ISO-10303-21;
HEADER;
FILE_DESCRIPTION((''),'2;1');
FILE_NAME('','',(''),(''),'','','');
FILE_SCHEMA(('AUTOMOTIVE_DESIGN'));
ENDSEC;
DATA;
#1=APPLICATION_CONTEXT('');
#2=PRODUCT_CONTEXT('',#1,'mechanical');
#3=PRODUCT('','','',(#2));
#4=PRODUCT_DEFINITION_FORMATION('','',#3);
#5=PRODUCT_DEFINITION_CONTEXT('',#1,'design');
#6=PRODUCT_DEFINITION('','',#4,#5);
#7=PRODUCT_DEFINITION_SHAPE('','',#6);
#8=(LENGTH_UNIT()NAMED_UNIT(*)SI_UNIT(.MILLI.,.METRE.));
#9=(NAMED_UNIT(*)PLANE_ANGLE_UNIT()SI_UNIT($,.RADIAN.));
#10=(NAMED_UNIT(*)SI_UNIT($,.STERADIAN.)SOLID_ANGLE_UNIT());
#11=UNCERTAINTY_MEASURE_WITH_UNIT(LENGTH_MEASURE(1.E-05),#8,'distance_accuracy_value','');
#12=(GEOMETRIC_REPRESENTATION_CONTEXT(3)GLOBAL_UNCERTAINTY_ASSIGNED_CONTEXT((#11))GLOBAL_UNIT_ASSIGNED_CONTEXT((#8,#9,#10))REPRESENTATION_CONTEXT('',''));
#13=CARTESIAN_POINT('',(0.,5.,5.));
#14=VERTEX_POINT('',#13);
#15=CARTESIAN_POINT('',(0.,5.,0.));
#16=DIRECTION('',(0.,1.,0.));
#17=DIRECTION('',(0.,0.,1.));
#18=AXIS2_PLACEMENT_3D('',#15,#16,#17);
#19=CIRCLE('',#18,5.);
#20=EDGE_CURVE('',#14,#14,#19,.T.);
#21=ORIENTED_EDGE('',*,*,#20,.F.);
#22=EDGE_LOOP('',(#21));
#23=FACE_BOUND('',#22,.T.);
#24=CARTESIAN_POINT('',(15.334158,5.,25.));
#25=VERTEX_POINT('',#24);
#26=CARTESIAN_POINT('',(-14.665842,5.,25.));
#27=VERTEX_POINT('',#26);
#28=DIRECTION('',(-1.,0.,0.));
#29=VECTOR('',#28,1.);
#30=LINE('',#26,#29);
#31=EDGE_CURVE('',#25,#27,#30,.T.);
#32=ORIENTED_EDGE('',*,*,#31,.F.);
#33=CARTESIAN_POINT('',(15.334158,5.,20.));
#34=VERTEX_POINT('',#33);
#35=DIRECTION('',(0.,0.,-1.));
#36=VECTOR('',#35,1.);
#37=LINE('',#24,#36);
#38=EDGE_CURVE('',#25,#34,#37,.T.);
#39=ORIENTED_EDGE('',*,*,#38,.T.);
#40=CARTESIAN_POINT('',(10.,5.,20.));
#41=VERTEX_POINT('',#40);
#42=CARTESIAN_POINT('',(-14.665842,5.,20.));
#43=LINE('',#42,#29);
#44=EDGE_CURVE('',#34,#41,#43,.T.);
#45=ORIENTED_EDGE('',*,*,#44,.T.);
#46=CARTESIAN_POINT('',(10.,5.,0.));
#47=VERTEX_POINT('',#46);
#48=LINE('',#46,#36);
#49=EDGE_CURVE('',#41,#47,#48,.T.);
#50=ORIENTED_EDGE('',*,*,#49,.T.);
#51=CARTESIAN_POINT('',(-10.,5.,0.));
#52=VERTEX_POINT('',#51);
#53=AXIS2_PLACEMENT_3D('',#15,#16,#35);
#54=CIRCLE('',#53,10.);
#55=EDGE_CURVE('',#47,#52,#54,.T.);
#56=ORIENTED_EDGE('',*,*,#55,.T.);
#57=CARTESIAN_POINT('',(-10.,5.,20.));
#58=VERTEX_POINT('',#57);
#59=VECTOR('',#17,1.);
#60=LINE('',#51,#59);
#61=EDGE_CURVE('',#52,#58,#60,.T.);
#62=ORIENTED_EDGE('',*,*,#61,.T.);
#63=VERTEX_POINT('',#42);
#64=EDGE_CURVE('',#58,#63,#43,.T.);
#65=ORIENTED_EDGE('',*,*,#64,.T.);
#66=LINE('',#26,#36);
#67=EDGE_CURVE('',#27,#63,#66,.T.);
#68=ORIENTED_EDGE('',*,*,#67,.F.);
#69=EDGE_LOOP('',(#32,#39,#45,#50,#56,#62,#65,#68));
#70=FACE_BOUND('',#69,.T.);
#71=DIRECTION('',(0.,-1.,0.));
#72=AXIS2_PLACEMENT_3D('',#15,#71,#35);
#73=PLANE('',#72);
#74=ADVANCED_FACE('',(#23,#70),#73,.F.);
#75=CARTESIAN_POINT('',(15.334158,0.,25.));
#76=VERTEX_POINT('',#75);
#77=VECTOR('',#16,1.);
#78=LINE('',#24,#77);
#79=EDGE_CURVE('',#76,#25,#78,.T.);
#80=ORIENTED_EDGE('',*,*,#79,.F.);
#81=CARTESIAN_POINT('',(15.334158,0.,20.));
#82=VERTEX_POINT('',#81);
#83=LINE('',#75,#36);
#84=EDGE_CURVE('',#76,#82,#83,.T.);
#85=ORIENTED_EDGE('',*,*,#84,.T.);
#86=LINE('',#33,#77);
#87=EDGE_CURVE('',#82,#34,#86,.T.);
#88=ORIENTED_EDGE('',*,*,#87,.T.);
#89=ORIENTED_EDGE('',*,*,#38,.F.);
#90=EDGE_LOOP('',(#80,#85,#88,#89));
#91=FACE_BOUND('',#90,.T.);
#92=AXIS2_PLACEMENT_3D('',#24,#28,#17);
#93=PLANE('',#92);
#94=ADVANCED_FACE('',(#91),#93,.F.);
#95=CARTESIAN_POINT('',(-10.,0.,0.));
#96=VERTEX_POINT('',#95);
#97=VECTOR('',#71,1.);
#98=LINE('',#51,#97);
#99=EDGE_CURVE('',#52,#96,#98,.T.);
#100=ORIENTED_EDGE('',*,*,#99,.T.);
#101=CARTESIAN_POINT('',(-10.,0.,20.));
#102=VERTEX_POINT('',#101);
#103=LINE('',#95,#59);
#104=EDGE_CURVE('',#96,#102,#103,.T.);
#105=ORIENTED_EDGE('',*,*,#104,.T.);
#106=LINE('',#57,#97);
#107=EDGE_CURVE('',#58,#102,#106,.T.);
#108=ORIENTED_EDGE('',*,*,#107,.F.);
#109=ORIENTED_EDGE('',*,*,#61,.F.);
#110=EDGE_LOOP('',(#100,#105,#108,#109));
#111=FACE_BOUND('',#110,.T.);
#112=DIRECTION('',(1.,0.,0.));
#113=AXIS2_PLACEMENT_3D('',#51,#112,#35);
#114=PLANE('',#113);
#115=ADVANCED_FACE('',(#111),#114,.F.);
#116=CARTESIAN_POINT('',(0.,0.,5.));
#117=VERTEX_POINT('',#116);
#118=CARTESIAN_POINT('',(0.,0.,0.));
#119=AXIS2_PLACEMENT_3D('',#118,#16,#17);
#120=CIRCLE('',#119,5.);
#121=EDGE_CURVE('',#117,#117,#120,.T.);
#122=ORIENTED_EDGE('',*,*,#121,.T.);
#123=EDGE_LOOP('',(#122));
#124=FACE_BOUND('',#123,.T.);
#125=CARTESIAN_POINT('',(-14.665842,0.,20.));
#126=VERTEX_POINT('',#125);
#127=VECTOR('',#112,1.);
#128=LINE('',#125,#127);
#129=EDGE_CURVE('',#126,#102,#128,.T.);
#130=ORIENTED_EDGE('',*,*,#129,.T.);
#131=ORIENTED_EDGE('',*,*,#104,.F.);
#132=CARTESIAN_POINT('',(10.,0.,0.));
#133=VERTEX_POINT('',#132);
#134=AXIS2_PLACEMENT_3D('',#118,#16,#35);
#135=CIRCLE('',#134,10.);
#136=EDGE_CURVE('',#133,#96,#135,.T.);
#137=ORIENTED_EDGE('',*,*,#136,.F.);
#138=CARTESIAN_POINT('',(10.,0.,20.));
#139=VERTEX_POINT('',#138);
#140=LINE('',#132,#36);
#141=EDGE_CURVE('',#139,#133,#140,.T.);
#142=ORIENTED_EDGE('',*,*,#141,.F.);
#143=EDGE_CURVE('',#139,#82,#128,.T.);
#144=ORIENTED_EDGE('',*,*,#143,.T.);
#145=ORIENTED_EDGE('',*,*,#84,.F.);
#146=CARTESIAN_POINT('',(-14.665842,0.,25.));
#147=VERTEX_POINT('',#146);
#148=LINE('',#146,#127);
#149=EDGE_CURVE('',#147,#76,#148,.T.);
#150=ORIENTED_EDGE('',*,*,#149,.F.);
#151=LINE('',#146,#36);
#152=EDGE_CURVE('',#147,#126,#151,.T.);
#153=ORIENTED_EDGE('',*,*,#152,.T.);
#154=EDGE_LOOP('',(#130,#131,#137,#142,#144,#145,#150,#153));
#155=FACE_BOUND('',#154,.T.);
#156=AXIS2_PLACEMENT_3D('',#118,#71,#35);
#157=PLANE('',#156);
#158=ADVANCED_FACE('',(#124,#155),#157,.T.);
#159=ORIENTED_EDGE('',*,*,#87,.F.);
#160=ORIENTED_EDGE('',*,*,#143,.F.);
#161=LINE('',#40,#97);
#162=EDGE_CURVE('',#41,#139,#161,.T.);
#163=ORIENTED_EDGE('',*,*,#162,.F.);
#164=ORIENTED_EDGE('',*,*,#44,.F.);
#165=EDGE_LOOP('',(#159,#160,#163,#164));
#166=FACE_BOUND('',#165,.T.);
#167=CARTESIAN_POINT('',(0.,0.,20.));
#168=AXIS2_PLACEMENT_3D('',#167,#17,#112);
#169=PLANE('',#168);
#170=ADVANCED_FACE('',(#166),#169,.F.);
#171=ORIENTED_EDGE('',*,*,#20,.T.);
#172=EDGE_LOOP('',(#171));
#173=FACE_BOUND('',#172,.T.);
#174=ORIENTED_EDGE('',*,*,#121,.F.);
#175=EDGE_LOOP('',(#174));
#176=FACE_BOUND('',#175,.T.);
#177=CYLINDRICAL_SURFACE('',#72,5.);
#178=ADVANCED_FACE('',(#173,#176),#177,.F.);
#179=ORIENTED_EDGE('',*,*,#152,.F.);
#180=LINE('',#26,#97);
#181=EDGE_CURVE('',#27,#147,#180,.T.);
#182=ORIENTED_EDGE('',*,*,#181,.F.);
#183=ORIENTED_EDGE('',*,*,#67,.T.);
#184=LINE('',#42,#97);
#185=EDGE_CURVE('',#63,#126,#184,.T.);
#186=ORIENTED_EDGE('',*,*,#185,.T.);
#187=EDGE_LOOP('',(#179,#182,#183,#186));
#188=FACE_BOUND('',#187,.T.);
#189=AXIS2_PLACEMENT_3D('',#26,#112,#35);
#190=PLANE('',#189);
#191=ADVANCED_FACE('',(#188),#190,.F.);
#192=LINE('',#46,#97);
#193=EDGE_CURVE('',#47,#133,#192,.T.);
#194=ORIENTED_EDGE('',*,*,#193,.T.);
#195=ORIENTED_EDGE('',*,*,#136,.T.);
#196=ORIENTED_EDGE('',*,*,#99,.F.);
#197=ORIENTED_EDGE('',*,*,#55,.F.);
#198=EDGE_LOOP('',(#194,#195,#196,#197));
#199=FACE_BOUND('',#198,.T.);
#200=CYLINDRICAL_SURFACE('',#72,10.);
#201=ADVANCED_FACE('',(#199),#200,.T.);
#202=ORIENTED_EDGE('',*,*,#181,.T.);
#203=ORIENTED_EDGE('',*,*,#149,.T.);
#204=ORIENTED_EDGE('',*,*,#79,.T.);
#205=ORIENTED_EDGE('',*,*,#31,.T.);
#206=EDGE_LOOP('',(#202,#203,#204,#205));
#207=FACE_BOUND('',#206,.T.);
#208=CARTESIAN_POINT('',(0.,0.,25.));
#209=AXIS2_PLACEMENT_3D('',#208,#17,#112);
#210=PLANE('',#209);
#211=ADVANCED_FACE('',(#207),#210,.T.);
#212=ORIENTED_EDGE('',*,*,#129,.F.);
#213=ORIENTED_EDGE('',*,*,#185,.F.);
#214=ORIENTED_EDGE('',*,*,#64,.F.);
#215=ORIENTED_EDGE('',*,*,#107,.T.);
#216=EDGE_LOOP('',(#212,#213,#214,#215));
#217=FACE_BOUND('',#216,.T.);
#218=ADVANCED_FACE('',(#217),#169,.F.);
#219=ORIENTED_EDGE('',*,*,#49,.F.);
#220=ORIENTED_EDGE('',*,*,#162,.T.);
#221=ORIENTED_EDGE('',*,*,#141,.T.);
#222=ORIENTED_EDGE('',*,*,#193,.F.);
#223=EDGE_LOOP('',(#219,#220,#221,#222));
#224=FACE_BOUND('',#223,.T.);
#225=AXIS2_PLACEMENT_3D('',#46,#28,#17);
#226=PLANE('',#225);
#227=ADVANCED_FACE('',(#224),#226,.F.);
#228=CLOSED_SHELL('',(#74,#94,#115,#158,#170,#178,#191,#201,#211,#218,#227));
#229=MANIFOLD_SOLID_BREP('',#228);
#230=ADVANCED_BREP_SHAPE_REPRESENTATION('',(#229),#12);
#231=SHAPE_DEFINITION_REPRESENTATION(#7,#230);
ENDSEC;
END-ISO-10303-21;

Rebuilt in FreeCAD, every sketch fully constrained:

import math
import FreeCAD as App
import Part
import Sketcher

doc = App.newDocument("Part")
body = doc.addObject("PartDesign::Body", "Body")

sketch1 = body.newObject("Sketcher::SketchObject", "Sketch")
sketch1.AttachmentSupport = (doc.getObject("XZ_Plane"), [""])
sketch1.MapMode = "FlatFace"
sketch1.addGeometry(Part.LineSegment(App.Vector(-10, 0, 0), App.Vector(-10, 20, 0)), False)
sketch1.addGeometry(Part.LineSegment(App.Vector(-10, 20, 0), App.Vector(10, 20, 0)), False)
sketch1.addGeometry(Part.LineSegment(App.Vector(10, 20, 0), App.Vector(10, 0, 0)), False)
sketch1.addGeometry(Part.ArcOfCircle(Part.Circle(App.Vector(0, 0, 0), App.Vector(0, 0, 1), 10), math.radians(180), math.radians(360)), False)
sketch1.addGeometry(Part.Circle(App.Vector(0, 0, 0), App.Vector(0, 0, 1), 5), False)
sketch1.addConstraint(Sketcher.Constraint("Coincident", 0, 2, 1, 1))
sketch1.addConstraint(Sketcher.Constraint("Coincident", 1, 2, 2, 1))
sketch1.addConstraint(Sketcher.Constraint("Tangent", 2, 2, 3, 2))
sketch1.addConstraint(Sketcher.Constraint("Tangent", 3, 1, 0, 1))
sketch1.addConstraint(Sketcher.Constraint("Vertical", 0))
sketch1.addConstraint(Sketcher.Constraint("Horizontal", 1))
sketch1.addConstraint(Sketcher.Constraint("Vertical", 2))
sketch1.addConstraint(Sketcher.Constraint("Coincident", 3, 3, -1, 1))
sketch1.addConstraint(Sketcher.Constraint("Coincident", 4, 3, -1, 1))
sketch1.addConstraint(Sketcher.Constraint("Equal", 1, 0))
sketch1.addConstraint(Sketcher.Constraint("Diameter", 4, 10.0))
sketch1.addConstraint(Sketcher.Constraint("Radius", 3, 10.0))
pad1 = body.newObject("PartDesign::Pad", "Pad")
pad1.Profile = sketch1
pad1.Length = 5
pad1.Reversed = True

sketch2 = body.newObject("Sketcher::SketchObject", "Sketch001")
sketch2.AttachmentSupport = (doc.getObject("XY_Plane"), [""])
sketch2.MapMode = "FlatFace"
sketch2.AttachmentOffset = App.Placement(App.Vector(0, 0, 20), App.Rotation())
sketch2.addGeometry(Part.LineSegment(App.Vector(-15, 5, 0), App.Vector(-15, 0, 0)), False)
sketch2.addGeometry(Part.LineSegment(App.Vector(-15, 0, 0), App.Vector(15, 0, 0)), False)
sketch2.addGeometry(Part.LineSegment(App.Vector(15, 0, 0), App.Vector(15, 5, 0)), False)
sketch2.addGeometry(Part.LineSegment(App.Vector(15, 5, 0), App.Vector(-15, 5, 0)), False)
sketch2.addConstraint(Sketcher.Constraint("Coincident", 0, 2, 1, 1))
sketch2.addConstraint(Sketcher.Constraint("Coincident", 1, 2, 2, 1))
sketch2.addConstraint(Sketcher.Constraint("Coincident", 2, 2, 3, 1))
sketch2.addConstraint(Sketcher.Constraint("Coincident", 3, 2, 0, 1))
sketch2.addConstraint(Sketcher.Constraint("Vertical", 0))
sketch2.addConstraint(Sketcher.Constraint("Horizontal", 1))
sketch2.addConstraint(Sketcher.Constraint("Vertical", 2))
sketch2.addConstraint(Sketcher.Constraint("Horizontal", 3))
sketch2.addConstraint(Sketcher.Constraint("PointOnObject", 0, 2, -1))
sketch2.addConstraint(Sketcher.Constraint("DistanceX", 1, 1, 1, 2, 30.0))
sketch2.addConstraint(Sketcher.Constraint("DistanceY", 0, 2, 0, 1, 5.0))
sketch2.addConstraint(Sketcher.Constraint("DistanceX", 0, 2, -1, 1, 14.665842))
pad2 = body.newObject("PartDesign::Pad", "Pad001")
pad2.Profile = sketch2
pad2.Length = 5

doc.recompute()
